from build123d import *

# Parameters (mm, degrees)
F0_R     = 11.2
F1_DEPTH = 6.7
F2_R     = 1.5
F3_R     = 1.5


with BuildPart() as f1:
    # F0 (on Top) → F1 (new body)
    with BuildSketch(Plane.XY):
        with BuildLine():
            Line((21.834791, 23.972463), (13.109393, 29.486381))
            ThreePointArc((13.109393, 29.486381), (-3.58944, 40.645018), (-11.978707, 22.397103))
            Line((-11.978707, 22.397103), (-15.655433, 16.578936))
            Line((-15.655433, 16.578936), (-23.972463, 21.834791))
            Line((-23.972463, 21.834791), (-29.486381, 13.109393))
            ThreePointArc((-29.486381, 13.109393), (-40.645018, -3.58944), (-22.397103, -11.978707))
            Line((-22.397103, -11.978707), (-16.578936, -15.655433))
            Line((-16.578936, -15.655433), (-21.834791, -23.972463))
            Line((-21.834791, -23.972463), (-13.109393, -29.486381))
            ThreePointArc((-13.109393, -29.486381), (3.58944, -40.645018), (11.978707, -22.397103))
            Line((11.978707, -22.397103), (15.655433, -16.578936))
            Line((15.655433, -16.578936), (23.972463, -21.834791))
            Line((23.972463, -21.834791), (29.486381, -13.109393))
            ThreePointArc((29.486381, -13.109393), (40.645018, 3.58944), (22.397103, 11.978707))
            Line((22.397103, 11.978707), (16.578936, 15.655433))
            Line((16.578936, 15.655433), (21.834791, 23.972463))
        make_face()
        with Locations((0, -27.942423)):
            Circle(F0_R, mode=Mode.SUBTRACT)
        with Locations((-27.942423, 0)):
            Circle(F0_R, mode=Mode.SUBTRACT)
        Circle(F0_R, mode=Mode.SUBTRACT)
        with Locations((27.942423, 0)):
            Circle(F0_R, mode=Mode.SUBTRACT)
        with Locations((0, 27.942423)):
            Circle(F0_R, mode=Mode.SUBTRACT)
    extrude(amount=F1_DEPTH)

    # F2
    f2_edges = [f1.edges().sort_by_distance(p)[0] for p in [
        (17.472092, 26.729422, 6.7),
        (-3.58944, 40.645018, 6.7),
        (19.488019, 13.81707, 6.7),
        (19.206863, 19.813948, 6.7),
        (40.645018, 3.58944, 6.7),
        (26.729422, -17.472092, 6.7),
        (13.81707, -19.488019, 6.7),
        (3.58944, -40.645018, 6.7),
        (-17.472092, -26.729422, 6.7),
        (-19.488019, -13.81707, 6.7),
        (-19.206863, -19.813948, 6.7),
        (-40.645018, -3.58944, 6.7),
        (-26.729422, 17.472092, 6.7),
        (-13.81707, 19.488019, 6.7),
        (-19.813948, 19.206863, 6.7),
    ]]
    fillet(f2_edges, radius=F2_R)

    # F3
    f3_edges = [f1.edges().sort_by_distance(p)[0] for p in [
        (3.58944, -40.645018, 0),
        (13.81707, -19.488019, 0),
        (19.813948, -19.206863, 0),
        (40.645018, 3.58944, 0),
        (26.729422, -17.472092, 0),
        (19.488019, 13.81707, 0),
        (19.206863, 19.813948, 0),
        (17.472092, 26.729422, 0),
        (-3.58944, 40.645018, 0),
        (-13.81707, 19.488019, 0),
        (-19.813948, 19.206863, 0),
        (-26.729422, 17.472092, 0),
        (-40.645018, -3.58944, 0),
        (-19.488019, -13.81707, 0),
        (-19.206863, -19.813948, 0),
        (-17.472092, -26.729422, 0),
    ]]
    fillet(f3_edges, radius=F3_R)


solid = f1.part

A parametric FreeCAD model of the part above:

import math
import FreeCAD as App
import Part
import Sketcher

V = App.Vector
Q = App.Units.Quantity


def edges_at(feature, points):
    """Names of the edges that pass closest to the given points."""
    edges = feature.Shape.Edges
    near = lambda p: min(range(len(edges)), key=lambda i: edges[i].distToShape(Part.Vertex(*p))[0])
    return sorted({f"Edge{near(p) + 1}" for p in points})

doc = App.newDocument("Part")
body = doc.addObject("PartDesign::Body", "Body")

# Sketch on XY plane
sketch1 = body.newObject("Sketcher::SketchObject", "Sketch")
sketch1.AttachmentSupport = (doc.getObject("XY_Plane"), [""])
sketch1.MapMode = "FlatFace"
sketch1.addGeometry([
    Part.LineSegment(V(22, 24, 0), V(13, 29, 0)),  # 0
    Part.ArcOfCircle(Part.Circle(V(0, 28, 0), V(0, 0, 1), 13), math.radians(7), math.radians(205)),  # 1
    Part.LineSegment(V(-12, 22, 0), V(-16, 17, 0)),  # 2
    Part.LineSegment(V(-16, 17, 0), V(-24, 22, 0)),  # 3
    Part.LineSegment(V(-24, 22, 0), V(-29, 13, 0)),  # 4
    Part.ArcOfCircle(Part.Circle(V(-28, 0, 0), V(0, 0, 1), 13), math.radians(97), math.radians(295)),  # 5
    Part.LineSegment(V(-22, -12, 0), V(-17, -16, 0)),  # 6
    Part.LineSegment(V(-17, -16, 0), V(-22, -24, 0)),  # 7
    Part.LineSegment(V(-22, -24, 0), V(-13, -29, 0)),  # 8
    Part.ArcOfCircle(Part.Circle(V(0, -28, 0), V(0, 0, 1), 13), math.radians(-173), math.radians(25)),  # 9
    Part.LineSegment(V(12, -22, 0), V(16, -17, 0)),  # 10
    Part.LineSegment(V(16, -17, 0), V(24, -22, 0)),  # 11
    Part.LineSegment(V(24, -22, 0), V(29, -13, 0)),  # 12
    Part.ArcOfCircle(Part.Circle(V(28, 0, 0), V(0, 0, 1), 13), math.radians(-83), math.radians(115)),  # 13
    Part.LineSegment(V(22, 12, 0), V(17, 16, 0)),  # 14
    Part.LineSegment(V(17, 16, 0), V(22, 24, 0)),  # 15
    Part.Circle(V(0, -28, 0), V(0, 0, 1), 11),  # 16
    Part.Circle(V(-28, 0, 0), V(0, 0, 1), 11),  # 17
    Part.Circle(V(0, 0, 0), V(0, 0, 1), 11),  # 18
    Part.Circle(V(28, 0, 0), V(0, 0, 1), 11),  # 19
    Part.Circle(V(0, 28, 0), V(0, 0, 1), 11),  # 20
], False)
sketch1.addConstraint([
    Sketcher.Constraint("Coincident", 0, 2, 1, 1),
    Sketcher.Constraint("Coincident", 1, 2, 2, 1),
    Sketcher.Constraint("Coincident", 2, 2, 3, 1),
    Sketcher.Constraint("Coincident", 3, 2, 4, 1),
    Sketcher.Constraint("Coincident", 4, 2, 5, 1),
    Sketcher.Constraint("Coincident", 5, 2, 6, 1),
    Sketcher.Constraint("Coincident", 6, 2, 7, 1),
    Sketcher.Constraint("Coincident", 7, 2, 8, 1),
    Sketcher.Constraint("Coincident", 8, 2, 9, 1),
    Sketcher.Constraint("Coincident", 9, 2, 10, 1),
    Sketcher.Constraint("Coincident", 10, 2, 11, 1),
    Sketcher.Constraint("Coincident", 11, 2, 12, 1),
    Sketcher.Constraint("Coincident", 12, 2, 13, 1),
    Sketcher.Constraint("Coincident", 13, 2, 14, 1),
    Sketcher.Constraint("Coincident", 14, 2, 15, 1),
    Sketcher.Constraint("Coincident", 15, 2, 0, 1),
    Sketcher.Constraint("Coincident", 18, 3, -1, 1),
    Sketcher.Constraint("Coincident", 16, 3, 9, 3),
    Sketcher.Constraint("Coincident", 17, 3, 5, 3),
    Sketcher.Constraint("Coincident", 19, 3, 13, 3),
    Sketcher.Constraint("Coincident", 20, 3, 1, 3),
    Sketcher.Constraint("Equal", 1, 5),
    Sketcher.Constraint("Equal", 5, 9),
    Sketcher.Constraint("Equal", 9, 13),
    Sketcher.Constraint("Equal", 16, 17),
    Sketcher.Constraint("Equal", 17, 18),
    Sketcher.Constraint("Equal", 18, 19),
    Sketcher.Constraint("Equal", 19, 20),
    Sketcher.Constraint("Symmetric", 1, 3, 9, 3, -1, 1),
    Sketcher.Constraint("Symmetric", 5, 3, 13, 3, -1, 1),
    Sketcher.Constraint("Symmetric", 2, 2, 10, 2, -1, 1),
    Sketcher.Constraint("Symmetric", 3, 2, 11, 2, -1, 1),
    Sketcher.Constraint("Symmetric", 6, 2, 14, 2, -1, 1),
    Sketcher.Constraint("Symmetric", 7, 2, 15, 2, -1, 1),
    Sketcher.Constraint("PointOnObject", 1, 3, -2),
    Sketcher.Constraint("PointOnObject", 5, 3, -1),
    Sketcher.Constraint("Perpendicular", 0, 2),
    Sketcher.Constraint("Perpendicular", 2, 3),
    Sketcher.Constraint("Perpendicular", 3, 4),
    Sketcher.Constraint("Perpendicular", 4, 6),
    Sketcher.Constraint("Perpendicular", 6, 7),
    Sketcher.Constraint("Perpendicular", 7, 8),
    Sketcher.Constraint("Perpendicular", 8, 10),
    Sketcher.Constraint("Perpendicular", 11, 12),
    Sketcher.Constraint("Perpendicular", 12, 14),
    Sketcher.Constraint("Equal", 0, 4),
    Sketcher.Constraint("Equal", 2, 6),
    Sketcher.Constraint("Equal", 3, 7),
    Sketcher.Constraint("Diameter", 16, Q("22.4 mm")),
    Sketcher.Constraint("Radius", 1, Q("13.2 mm")),
    Sketcher.Constraint("DistanceX", 1, 2, 0, 2, Q("25.0881 mm")),
    Sketcher.Constraint("DistanceY", 5, 2, 4, 2, Q("25.0881 mm")),
    Sketcher.Constraint("Distance", 0, Q("10.321621 mm")),
    Sketcher.Constraint("Distance", 2, Q("6.882542 mm")),
    Sketcher.Constraint("DistanceY", -1, 1, 0, 2, Q("29.486381 mm")),
    Sketcher.Constraint("DistanceY", -1, 1, 3, 2, Q("21.834791 mm")),
])
pad1 = body.newObject("PartDesign::Pad", "Pad")
pad1.Profile = sketch1
pad1.Length = 6.7
doc.recompute()

fillet = body.newObject("PartDesign::Fillet", "Fillet")
fillet.Base = (pad1, edges_at(pad1, [
    (17.472, 26.729, 6.7),
    (-3.589, 40.645, 6.7),
    (19.488, 13.817, 6.7),
    (19.207, 19.814, 6.7),
    (40.645, 3.589, 6.7),
    (26.729, -17.472, 6.7),
    (13.817, -19.488, 6.7),
    (3.589, -40.645, 6.7),
    (-17.472, -26.729, 6.7),
    (-19.488, -13.817, 6.7),
    (-19.207, -19.814, 6.7),
    (-40.645, -3.589, 6.7),
    (-26.729, 17.472, 6.7),
    (-13.817, 19.488, 6.7),
    (-19.814, 19.207, 6.7),
]))
fillet.Radius = 1.5
doc.recompute()

fillet2 = body.newObject("PartDesign::Fillet", "Fillet001")
fillet2.Base = (fillet, edges_at(fillet, [
    (3.589, -40.645, 0),
    (13.817, -19.488, 0),
    (19.814, -19.207, 0),
    (40.645, 3.589, 0),
    (26.729, -17.472, 0),
    (19.488, 13.817, 0),
    (19.207, 19.814, 0),
    (17.472, 26.729, 0),
    (-3.589, 40.645, 0),
    (-13.817, 19.488, 0),
    (-19.814, 19.207, 0),
    (-26.729, 17.472, 0),
    (-40.645, -3.589, 0),
    (-19.488, -13.817, 0),
    (-19.207, -19.814, 0),
    (-17.472, -26.729, 0),
]))
fillet2.Radius = 1.5

doc.recompute()
